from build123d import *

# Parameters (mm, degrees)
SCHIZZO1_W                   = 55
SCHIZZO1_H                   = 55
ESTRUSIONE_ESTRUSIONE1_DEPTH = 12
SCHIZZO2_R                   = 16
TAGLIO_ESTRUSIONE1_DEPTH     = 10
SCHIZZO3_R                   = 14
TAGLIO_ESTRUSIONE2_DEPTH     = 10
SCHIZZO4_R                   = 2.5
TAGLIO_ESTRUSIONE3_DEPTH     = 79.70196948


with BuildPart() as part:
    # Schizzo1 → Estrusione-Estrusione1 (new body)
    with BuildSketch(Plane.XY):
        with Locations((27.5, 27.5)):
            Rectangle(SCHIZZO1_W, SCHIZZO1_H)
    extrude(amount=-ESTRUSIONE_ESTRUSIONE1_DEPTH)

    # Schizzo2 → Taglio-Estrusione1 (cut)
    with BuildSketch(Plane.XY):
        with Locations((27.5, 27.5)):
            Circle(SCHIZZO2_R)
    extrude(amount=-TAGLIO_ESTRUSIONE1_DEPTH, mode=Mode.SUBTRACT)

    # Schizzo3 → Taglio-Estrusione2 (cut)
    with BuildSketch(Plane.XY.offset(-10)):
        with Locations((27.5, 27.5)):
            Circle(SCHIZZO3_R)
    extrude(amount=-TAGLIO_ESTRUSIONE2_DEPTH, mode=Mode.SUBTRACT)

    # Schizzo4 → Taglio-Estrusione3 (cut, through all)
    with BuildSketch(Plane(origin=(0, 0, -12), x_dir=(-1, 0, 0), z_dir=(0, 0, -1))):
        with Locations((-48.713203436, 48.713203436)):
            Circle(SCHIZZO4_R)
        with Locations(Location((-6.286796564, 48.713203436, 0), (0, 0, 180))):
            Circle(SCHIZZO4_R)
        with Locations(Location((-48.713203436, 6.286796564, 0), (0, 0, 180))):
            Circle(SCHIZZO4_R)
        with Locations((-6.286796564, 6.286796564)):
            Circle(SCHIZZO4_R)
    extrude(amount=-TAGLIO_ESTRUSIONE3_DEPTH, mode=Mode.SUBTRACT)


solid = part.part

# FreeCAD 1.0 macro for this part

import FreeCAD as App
import Part
import Sketcher
from FreeCAD import Vector
Q = App.Units.Quantity

doc = App.newDocument("Part")
body = doc.addObject("PartDesign::Body", "Body")

# Sketch on XY plane
sketch1 = doc.addObject("Sketcher::SketchObject", "Sketch")
body.addObject(sketch1)
sketch1.AttachmentSupport = (doc.XY_Plane, [""])
sketch1.MapMode = "FlatFace"
sketch1.addGeometry([
    Part.LineSegment(Vector(0, 55, 0), Vector(0, 0, 0)),
    Part.LineSegment(Vector(0, 0, 0), Vector(55, 0, 0)),
    Part.LineSegment(Vector(55, 0, 0), Vector(55, 55, 0)),
    Part.LineSegment(Vector(55, 55, 0), Vector(0, 55, 0)),
], False)
sketch1.addConstraint([
    Sketcher.Constraint("Coincident", 0, 2, 1, 1),
    Sketcher.Constraint("Coincident", 1, 2, 2, 1),
    Sketcher.Constraint("Coincident", 2, 2, 3, 1),
    Sketcher.Constraint("Coincident", 3, 2, 0, 1),
    Sketcher.Constraint("Vertical", 0),
    Sketcher.Constraint("Horizontal", 1),
    Sketcher.Constraint("Vertical", 2),
    Sketcher.Constraint("Horizontal", 3),
    Sketcher.Constraint("Coincident", 0, 2, -1, 1),
    Sketcher.Constraint("Equal", 3, 0),
    Sketcher.Constraint("DistanceX", 1, 1, 1, 2, Q("55 mm")),
])
pad1 = doc.addObject("PartDesign::Pad", "Pad")
body.addObject(pad1)
pad1.Profile = sketch1
pad1.Length = 12
pad1.Reversed = True

# Sketch on XY plane
sketch2 = doc.addObject("Sketcher::SketchObject", "Sketch001")
body.addObject(sketch2)
sketch2.AttachmentSupport = (doc.XY_Plane, [""])
sketch2.MapMode = "FlatFace"
sketch2.addGeometry(Part.Circle(Vector(28, 28, 0), Vector(0, 0, 1), 16), False)
sketch2.addConstraint([
    Sketcher.Constraint("Diameter", 0, Q("32 mm")),
    Sketcher.Constraint("DistanceX", -1, 1, 0, 3, Q("27.5 mm")),
    Sketcher.Constraint("DistanceY", -1, 1, 0, 3, Q("27.5 mm")),
])
pocket1 = doc.addObject("PartDesign::Pocket", "Pocket")
body.addObject(pocket1)
pocket1.Profile = sketch2
pocket1.Length = 10

# Sketch on XY plane
sketch3 = doc.addObject("Sketcher::SketchObject", "Sketch002")
body.addObject(sketch3)
sketch3.AttachmentSupport = (doc.XY_Plane, [""])
sketch3.MapMode = "FlatFace"
sketch3.AttachmentOffset = App.Placement(Vector(0, 0, -10), App.Rotation())
sketch3.addGeometry(Part.Circle(Vector(28, 28, 0), Vector(0, 0, 1), 14), False)
sketch3.addConstraint([
    Sketcher.Constraint("Diameter", 0, Q("28 mm")),
    Sketcher.Constraint("DistanceX", -1, 1, 0, 3, Q("27.5 mm")),
    Sketcher.Constraint("DistanceY", -1, 1, 0, 3, Q("27.5 mm")),
])
pocket2 = doc.addObject("PartDesign::Pocket", "Pocket001")
body.addObject(pocket2)
pocket2.Profile = sketch3
pocket2.Length = 10

# Sketch on XY plane
sketch4 = doc.addObject("Sketcher::SketchObject", "Sketch003")
body.addObject(sketch4)
sketch4.AttachmentSupport = (doc.XY_Plane, [""])
sketch4.MapMode = "FlatFace"
sketch4.AttachmentOffset = App.Placement(Vector(0, 0, -12), App.Rotation())
sketch4.addGeometry([
    Part.Circle(Vector(48.7, 48.7, 0), Vector(0, 0, 1), 2.5),
    Part.Circle(Vector(6.3, 48.7, 0), Vector(0, 0, 1), 2.5),
    Part.Circle(Vector(48.7, 6.3, 0), Vector(0, 0, 1), 2.5),
    Part.Circle(Vector(6.3, 6.3, 0), Vector(0, 0, 1), 2.5),
], False)
sketch4.addConstraint([
    Sketcher.Constraint("Equal", 0, 1),
    Sketcher.Constraint("Equal", 1, 2),
    Sketcher.Constraint("Equal", 2, 3),
    Sketcher.Constraint("Horizontal", 0, 3, 1, 3),
    Sketcher.Constraint("Horizontal", 2, 3, 3, 3),
    Sketcher.Constraint("Vertical", 0, 3, 2, 3),
    Sketcher.Constraint("Vertical", 1, 3, 3, 3),
    Sketcher.Constraint("Diameter", 0, Q("5 mm")),
    Sketcher.Constraint("DistanceX", -1, 1, 0, 3, Q("48.713203 mm")),
    Sketcher.Constraint("DistanceY", -1, 1, 0, 3, Q("48.713203 mm")),
    Sketcher.Constraint("DistanceX", -1, 1, 1, 3, Q("6.286797 mm")),
    Sketcher.Constraint("DistanceY", -1, 1, 2, 3, Q("6.286797 mm")),
])
pocket3 = doc.addObject("PartDesign::Pocket", "Pocket002")
body.addObject(pocket3)
pocket3.Profile = sketch4
pocket3.Type = "ThroughAll"
pocket3.Reversed = True

doc.recompute()
